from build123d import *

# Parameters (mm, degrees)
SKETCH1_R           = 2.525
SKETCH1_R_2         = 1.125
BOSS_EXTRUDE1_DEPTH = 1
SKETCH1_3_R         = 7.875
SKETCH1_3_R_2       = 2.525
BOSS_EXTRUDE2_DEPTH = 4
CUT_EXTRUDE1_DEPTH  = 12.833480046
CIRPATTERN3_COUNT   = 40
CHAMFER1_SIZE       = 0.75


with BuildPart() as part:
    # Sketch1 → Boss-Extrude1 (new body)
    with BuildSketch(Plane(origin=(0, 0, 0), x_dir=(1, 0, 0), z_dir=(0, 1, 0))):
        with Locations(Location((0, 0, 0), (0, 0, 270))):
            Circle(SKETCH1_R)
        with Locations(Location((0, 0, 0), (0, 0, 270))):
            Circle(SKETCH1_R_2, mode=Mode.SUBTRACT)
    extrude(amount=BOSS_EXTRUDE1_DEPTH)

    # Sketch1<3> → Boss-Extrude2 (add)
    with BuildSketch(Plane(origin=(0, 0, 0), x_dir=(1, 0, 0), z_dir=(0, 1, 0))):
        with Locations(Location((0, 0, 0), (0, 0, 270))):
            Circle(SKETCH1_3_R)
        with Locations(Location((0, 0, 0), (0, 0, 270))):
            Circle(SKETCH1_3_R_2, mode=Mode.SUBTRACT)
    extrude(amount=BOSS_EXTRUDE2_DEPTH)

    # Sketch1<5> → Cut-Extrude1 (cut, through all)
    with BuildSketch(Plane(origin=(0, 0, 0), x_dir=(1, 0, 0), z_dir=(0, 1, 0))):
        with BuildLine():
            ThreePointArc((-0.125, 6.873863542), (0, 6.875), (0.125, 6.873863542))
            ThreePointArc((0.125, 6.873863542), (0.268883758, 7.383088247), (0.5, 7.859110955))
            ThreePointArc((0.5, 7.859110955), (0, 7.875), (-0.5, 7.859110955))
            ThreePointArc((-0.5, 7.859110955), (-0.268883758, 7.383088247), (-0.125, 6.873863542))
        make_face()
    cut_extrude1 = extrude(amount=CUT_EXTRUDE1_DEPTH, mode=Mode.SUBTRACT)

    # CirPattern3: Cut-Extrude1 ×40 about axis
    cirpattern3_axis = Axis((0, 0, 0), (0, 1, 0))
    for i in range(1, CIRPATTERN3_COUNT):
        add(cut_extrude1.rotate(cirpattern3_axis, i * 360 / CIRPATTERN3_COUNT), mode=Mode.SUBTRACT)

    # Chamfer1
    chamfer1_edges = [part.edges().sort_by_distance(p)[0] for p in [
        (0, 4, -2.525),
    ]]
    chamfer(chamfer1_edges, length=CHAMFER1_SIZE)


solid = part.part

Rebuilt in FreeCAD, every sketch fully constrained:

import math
import FreeCAD as App
import Part
import Sketcher


def edges_at(feature, points):
    """Names of the edges that pass closest to the given points."""
    edges = feature.Shape.Edges
    near = lambda p: min(range(len(edges)), key=lambda i: edges[i].distToShape(Part.Vertex(*p))[0])
    return sorted({f"Edge{near(p) + 1}" for p in points})

doc = App.newDocument("Part")
body = doc.addObject("PartDesign::Body", "Body")

sketch1 = body.newObject("Sketcher::SketchObject", "Sketch")
sketch1.AttachmentSupport = (doc.getObject("XZ_Plane"), [""])
sketch1.MapMode = "FlatFace"
sketch1.addGeometry(Part.Circle(App.Vector(0, 0, 0), App.Vector(0, 0, 1), 2.5), False)
sketch1.addGeometry(Part.Circle(App.Vector(0, 0, 0), App.Vector(0, 0, 1), 1.1), False)
sketch1.addConstraint(Sketcher.Constraint("Coincident", 0, 3, -1, 1))
sketch1.addConstraint(Sketcher.Constraint("Coincident", 1, 3, -1, 1))
sketch1.addConstraint(Sketcher.Constraint("Diameter", 0, 5.05))
sketch1.addConstraint(Sketcher.Constraint("Diameter", 1, 2.25))
pad1 = body.newObject("PartDesign::Pad", "Pad")
pad1.Profile = sketch1
pad1.Length = 1
pad1.Reversed = True

sketch2 = body.newObject("Sketcher::SketchObject", "Sketch001")
sketch2.AttachmentSupport = (doc.getObject("XZ_Plane"), [""])
sketch2.MapMode = "FlatFace"
sketch2.addGeometry(Part.Circle(App.Vector(0, 0, 0), App.Vector(0, 0, 1), 7.9), False)
sketch2.addGeometry(Part.Circle(App.Vector(0, 0, 0), App.Vector(0, 0, 1), 2.5), False)
sketch2.addConstraint(Sketcher.Constraint("Coincident", 0, 3, -1, 1))
sketch2.addConstraint(Sketcher.Constraint("Coincident", 1, 3, -1, 1))
sketch2.addConstraint(Sketcher.Constraint("Diameter", 0, 15.75))
sketch2.addConstraint(Sketcher.Constraint("Diameter", 1, 5.05))
pad2 = body.newObject("PartDesign::Pad", "Pad001")
pad2.Profile = sketch2
pad2.Length = 4
pad2.Reversed = True

sketch3 = body.newObject("Sketcher::SketchObject", "Sketch002")
sketch3.AttachmentSupport = (doc.getObject("XZ_Plane"), [""])
sketch3.MapMode = "FlatFace"
sketch3.addGeometry(Part.ArcOfCircle(Part.Circle(App.Vector(0, 0, 0), App.Vector(0, 0, 1), 6.87), math.radians(-91.04), math.radians(-88.96)), False)
sketch3.addGeometry(Part.ArcOfCircle(Part.Circle(App.Vector(3.07, -6.32, 0), App.Vector(0, 0, 1), 3), math.radians(-169), math.radians(-149)), False)
sketch3.addGeometry(Part.ArcOfCircle(Part.Circle(App.Vector(0, 0, 0), App.Vector(0, 0, 1), 7.88), math.radians(-93.64), math.radians(-86.36)), False)
sketch3.addGeometry(Part.ArcOfCircle(Part.Circle(App.Vector(-3.07, -6.32, 0), App.Vector(0, 0, 1), 3), math.radians(-31), math.radians(-11)), False)
sketch3.addConstraint(Sketcher.Constraint("Coincident", 0, 2, 1, 1))
sketch3.addConstraint(Sketcher.Constraint("Coincident", 1, 2, 2, 2))
sketch3.addConstraint(Sketcher.Constraint("Coincident", 2, 1, 3, 1))
sketch3.addConstraint(Sketcher.Constraint("Coincident", 3, 2, 0, 1))
sketch3.addConstraint(Sketcher.Constraint("Coincident", 0, 3, -1, 1))
sketch3.addConstraint(Sketcher.Constraint("Coincident", 2, 3, -1, 1))
sketch3.addConstraint(Sketcher.Constraint("Equal", 1, 3))
sketch3.addConstraint(Sketcher.Constraint("Symmetric", 1, 3, 3, 3, -2))
sketch3.addConstraint(Sketcher.Constraint("Radius", 1, 3.0))
sketch3.addConstraint(Sketcher.Constraint("Radius", 2, 7.875))
sketch3.addConstraint(Sketcher.Constraint("DistanceX", 2, 1, 1, 2, 1.0))
sketch3.addConstraint(Sketcher.Constraint("DistanceX", 3, 2, 0, 2, 0.25))
sketch3.addConstraint(Sketcher.Constraint("Radius", 0, 6.874997))
pocket1 = body.newObject("PartDesign::Pocket", "Pocket")
pocket1.Profile = sketch3
pocket1.Type = "ThroughAll"
doc.recompute()

polarpattern = body.newObject("PartDesign::PolarPattern", "PolarPattern")
polarpattern.Originals = [pocket1]
polarpattern.Axis = (doc.getObject("Y_Axis"), [""])
polarpattern.Angle = 360
polarpattern.Occurrences = 40
body.Tip = polarpattern
doc.recompute()

chamfer = body.newObject("PartDesign::Chamfer", "Chamfer")
chamfer.Base = (polarpattern, edges_at(polarpattern, [(0, 4, -2.525)]))
chamfer.Size = 0.75

doc.recompute()
